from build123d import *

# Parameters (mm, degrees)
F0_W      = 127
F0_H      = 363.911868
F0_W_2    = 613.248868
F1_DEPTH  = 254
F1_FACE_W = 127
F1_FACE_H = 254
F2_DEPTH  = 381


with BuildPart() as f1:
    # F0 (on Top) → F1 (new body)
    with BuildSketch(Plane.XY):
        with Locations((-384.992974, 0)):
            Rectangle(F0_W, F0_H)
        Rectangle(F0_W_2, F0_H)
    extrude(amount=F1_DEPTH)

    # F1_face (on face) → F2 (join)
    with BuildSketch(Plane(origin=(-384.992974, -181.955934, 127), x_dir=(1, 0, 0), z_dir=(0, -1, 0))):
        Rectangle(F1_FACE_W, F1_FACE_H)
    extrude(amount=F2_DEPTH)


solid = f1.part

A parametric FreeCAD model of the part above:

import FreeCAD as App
import Part
import Sketcher
from FreeCAD import Vector
Q = App.Units.Quantity

doc = App.newDocument("Part")
body = doc.addObject("PartDesign::Body", "Body")
body.AllowCompound = True

# Sketch on XY plane
sketch1 = body.newObject("Sketcher::SketchObject", "Sketch")
sketch1.AttachmentSupport = (doc.getObject("XY_Plane"), [""])
sketch1.MapMode = "FlatFace"
sketch1.addGeometry(Part.LineSegment(Vector(-448.492974, 181.955934, 0), Vector(-448.492974, -181.955934, 0)), False)
sketch1.addGeometry(Part.LineSegment(Vector(-448.492974, -181.955934, 0), Vector(-321.492974, -181.955934, 0)), False)
sketch1.addGeometry(Part.LineSegment(Vector(-321.492974, -181.955934, 0), Vector(-321.492974, 181.955934, 0)), False)
sketch1.addGeometry(Part.LineSegment(Vector(-321.492974, 181.955934, 0), Vector(-448.492974, 181.955934, 0)), False)
sketch1.addGeometry(Part.LineSegment(Vector(-306.624434, 181.955934, 0), Vector(-306.624434, -181.955934, 0)), False)
sketch1.addGeometry(Part.LineSegment(Vector(-306.624434, -181.955934, 0), Vector(306.624434, -181.955934, 0)), False)
sketch1.addGeometry(Part.LineSegment(Vector(306.624434, -181.955934, 0), Vector(306.624434, 181.955934, 0)), False)
sketch1.addGeometry(Part.LineSegment(Vector(306.624434, 181.955934, 0), Vector(-306.624434, 181.955934, 0)), False)
sketch1.addConstraint(Sketcher.Constraint("Coincident", 0, 2, 1, 1))
sketch1.addConstraint(Sketcher.Constraint("Coincident", 1, 2, 2, 1))
sketch1.addConstraint(Sketcher.Constraint("Coincident", 2, 2, 3, 1))
sketch1.addConstraint(Sketcher.Constraint("Coincident", 3, 2, 0, 1))
sketch1.addConstraint(Sketcher.Constraint("Coincident", 4, 2, 5, 1))
sketch1.addConstraint(Sketcher.Constraint("Coincident", 5, 2, 6, 1))
sketch1.addConstraint(Sketcher.Constraint("Coincident", 6, 2, 7, 1))
sketch1.addConstraint(Sketcher.Constraint("Coincident", 7, 2, 4, 1))
sketch1.addConstraint(Sketcher.Constraint("Vertical", 0))
sketch1.addConstraint(Sketcher.Constraint("Horizontal", 1))
sketch1.addConstraint(Sketcher.Constraint("Vertical", 2))
sketch1.addConstraint(Sketcher.Constraint("Horizontal", 3))
sketch1.addConstraint(Sketcher.Constraint("Vertical", 4))
sketch1.addConstraint(Sketcher.Constraint("Horizontal", 5))
sketch1.addConstraint(Sketcher.Constraint("Vertical", 6))
sketch1.addConstraint(Sketcher.Constraint("Horizontal", 7))
sketch1.addConstraint(Sketcher.Constraint("Symmetric", 4, 2, 6, 2, -1, 1))
sketch1.addConstraint(Sketcher.Constraint("Horizontal", 1, 2, 4, 2))
sketch1.addConstraint(Sketcher.Constraint("Horizontal", 3, 2, 6, 2))
sketch1.addConstraint(Sketcher.Constraint("DistanceX", 1, 1, 1, 2, Q("5 in")))
sketch1.addConstraint(Sketcher.Constraint("DistanceX", 5, 1, 5, 2, Q("613.248868 mm")))
sketch1.addConstraint(Sketcher.Constraint("DistanceY", 0, 2, 0, 1, Q("363.911868 mm")))
sketch1.addConstraint(Sketcher.Constraint("DistanceX", 1, 2, 4, 2, Q("14.86854 mm")))
pad1 = body.newObject("PartDesign::Pad", "Pad")
pad1.Profile = sketch1
pad1.Length = Q("10 in")

# Sketch on XZ plane
sketch2 = body.newObject("Sketcher::SketchObject", "Sketch001")
sketch2.AttachmentSupport = (doc.getObject("XZ_Plane"), [""])
sketch2.MapMode = "FlatFace"
sketch2.AttachmentOffset = App.Placement(Vector(0, 0, 181.955934), App.Rotation())
sketch2.addGeometry(Part.LineSegment(Vector(-448.492974, 254, 0), Vector(-448.492974, 0, 0)), False)
sketch2.addGeometry(Part.LineSegment(Vector(-448.492974, 0, 0), Vector(-321.492974, 0, 0)), False)
sketch2.addGeometry(Part.LineSegment(Vector(-321.492974, 0, 0), Vector(-321.492974, 254, 0)), False)
sketch2.addGeometry(Part.LineSegment(Vector(-321.492974, 254, 0), Vector(-448.492974, 254, 0)), False)
sketch2.addConstraint(Sketcher.Constraint("Coincident", 0, 2, 1, 1))
sketch2.addConstraint(Sketcher.Constraint("Coincident", 1, 2, 2, 1))
sketch2.addConstraint(Sketcher.Constraint("Coincident", 2, 2, 3, 1))
sketch2.addConstraint(Sketcher.Constraint("Coincident", 3, 2, 0, 1))
sketch2.addConstraint(Sketcher.Constraint("Vertical", 0))
sketch2.addConstraint(Sketcher.Constraint("Horizontal", 1))
sketch2.addConstraint(Sketcher.Constraint("Vertical", 2))
sketch2.addConstraint(Sketcher.Constraint("Horizontal", 3))
sketch2.addConstraint(Sketcher.Constraint("PointOnObject", 0, 2, -1))
sketch2.addConstraint(Sketcher.Constraint("DistanceX", 1, 1, 1, 2, Q("5 in")))
sketch2.addConstraint(Sketcher.Constraint("DistanceY", 0, 2, 0, 1, Q("10 in")))
sketch2.addConstraint(Sketcher.Constraint("DistanceX", 0, 2, -1, 1, Q("448.492974 mm")))
pad2 = body.newObject("PartDesign::Pad", "Pad001")
pad2.Profile = sketch2
pad2.Length = Q("15 in")

doc.recompute()
